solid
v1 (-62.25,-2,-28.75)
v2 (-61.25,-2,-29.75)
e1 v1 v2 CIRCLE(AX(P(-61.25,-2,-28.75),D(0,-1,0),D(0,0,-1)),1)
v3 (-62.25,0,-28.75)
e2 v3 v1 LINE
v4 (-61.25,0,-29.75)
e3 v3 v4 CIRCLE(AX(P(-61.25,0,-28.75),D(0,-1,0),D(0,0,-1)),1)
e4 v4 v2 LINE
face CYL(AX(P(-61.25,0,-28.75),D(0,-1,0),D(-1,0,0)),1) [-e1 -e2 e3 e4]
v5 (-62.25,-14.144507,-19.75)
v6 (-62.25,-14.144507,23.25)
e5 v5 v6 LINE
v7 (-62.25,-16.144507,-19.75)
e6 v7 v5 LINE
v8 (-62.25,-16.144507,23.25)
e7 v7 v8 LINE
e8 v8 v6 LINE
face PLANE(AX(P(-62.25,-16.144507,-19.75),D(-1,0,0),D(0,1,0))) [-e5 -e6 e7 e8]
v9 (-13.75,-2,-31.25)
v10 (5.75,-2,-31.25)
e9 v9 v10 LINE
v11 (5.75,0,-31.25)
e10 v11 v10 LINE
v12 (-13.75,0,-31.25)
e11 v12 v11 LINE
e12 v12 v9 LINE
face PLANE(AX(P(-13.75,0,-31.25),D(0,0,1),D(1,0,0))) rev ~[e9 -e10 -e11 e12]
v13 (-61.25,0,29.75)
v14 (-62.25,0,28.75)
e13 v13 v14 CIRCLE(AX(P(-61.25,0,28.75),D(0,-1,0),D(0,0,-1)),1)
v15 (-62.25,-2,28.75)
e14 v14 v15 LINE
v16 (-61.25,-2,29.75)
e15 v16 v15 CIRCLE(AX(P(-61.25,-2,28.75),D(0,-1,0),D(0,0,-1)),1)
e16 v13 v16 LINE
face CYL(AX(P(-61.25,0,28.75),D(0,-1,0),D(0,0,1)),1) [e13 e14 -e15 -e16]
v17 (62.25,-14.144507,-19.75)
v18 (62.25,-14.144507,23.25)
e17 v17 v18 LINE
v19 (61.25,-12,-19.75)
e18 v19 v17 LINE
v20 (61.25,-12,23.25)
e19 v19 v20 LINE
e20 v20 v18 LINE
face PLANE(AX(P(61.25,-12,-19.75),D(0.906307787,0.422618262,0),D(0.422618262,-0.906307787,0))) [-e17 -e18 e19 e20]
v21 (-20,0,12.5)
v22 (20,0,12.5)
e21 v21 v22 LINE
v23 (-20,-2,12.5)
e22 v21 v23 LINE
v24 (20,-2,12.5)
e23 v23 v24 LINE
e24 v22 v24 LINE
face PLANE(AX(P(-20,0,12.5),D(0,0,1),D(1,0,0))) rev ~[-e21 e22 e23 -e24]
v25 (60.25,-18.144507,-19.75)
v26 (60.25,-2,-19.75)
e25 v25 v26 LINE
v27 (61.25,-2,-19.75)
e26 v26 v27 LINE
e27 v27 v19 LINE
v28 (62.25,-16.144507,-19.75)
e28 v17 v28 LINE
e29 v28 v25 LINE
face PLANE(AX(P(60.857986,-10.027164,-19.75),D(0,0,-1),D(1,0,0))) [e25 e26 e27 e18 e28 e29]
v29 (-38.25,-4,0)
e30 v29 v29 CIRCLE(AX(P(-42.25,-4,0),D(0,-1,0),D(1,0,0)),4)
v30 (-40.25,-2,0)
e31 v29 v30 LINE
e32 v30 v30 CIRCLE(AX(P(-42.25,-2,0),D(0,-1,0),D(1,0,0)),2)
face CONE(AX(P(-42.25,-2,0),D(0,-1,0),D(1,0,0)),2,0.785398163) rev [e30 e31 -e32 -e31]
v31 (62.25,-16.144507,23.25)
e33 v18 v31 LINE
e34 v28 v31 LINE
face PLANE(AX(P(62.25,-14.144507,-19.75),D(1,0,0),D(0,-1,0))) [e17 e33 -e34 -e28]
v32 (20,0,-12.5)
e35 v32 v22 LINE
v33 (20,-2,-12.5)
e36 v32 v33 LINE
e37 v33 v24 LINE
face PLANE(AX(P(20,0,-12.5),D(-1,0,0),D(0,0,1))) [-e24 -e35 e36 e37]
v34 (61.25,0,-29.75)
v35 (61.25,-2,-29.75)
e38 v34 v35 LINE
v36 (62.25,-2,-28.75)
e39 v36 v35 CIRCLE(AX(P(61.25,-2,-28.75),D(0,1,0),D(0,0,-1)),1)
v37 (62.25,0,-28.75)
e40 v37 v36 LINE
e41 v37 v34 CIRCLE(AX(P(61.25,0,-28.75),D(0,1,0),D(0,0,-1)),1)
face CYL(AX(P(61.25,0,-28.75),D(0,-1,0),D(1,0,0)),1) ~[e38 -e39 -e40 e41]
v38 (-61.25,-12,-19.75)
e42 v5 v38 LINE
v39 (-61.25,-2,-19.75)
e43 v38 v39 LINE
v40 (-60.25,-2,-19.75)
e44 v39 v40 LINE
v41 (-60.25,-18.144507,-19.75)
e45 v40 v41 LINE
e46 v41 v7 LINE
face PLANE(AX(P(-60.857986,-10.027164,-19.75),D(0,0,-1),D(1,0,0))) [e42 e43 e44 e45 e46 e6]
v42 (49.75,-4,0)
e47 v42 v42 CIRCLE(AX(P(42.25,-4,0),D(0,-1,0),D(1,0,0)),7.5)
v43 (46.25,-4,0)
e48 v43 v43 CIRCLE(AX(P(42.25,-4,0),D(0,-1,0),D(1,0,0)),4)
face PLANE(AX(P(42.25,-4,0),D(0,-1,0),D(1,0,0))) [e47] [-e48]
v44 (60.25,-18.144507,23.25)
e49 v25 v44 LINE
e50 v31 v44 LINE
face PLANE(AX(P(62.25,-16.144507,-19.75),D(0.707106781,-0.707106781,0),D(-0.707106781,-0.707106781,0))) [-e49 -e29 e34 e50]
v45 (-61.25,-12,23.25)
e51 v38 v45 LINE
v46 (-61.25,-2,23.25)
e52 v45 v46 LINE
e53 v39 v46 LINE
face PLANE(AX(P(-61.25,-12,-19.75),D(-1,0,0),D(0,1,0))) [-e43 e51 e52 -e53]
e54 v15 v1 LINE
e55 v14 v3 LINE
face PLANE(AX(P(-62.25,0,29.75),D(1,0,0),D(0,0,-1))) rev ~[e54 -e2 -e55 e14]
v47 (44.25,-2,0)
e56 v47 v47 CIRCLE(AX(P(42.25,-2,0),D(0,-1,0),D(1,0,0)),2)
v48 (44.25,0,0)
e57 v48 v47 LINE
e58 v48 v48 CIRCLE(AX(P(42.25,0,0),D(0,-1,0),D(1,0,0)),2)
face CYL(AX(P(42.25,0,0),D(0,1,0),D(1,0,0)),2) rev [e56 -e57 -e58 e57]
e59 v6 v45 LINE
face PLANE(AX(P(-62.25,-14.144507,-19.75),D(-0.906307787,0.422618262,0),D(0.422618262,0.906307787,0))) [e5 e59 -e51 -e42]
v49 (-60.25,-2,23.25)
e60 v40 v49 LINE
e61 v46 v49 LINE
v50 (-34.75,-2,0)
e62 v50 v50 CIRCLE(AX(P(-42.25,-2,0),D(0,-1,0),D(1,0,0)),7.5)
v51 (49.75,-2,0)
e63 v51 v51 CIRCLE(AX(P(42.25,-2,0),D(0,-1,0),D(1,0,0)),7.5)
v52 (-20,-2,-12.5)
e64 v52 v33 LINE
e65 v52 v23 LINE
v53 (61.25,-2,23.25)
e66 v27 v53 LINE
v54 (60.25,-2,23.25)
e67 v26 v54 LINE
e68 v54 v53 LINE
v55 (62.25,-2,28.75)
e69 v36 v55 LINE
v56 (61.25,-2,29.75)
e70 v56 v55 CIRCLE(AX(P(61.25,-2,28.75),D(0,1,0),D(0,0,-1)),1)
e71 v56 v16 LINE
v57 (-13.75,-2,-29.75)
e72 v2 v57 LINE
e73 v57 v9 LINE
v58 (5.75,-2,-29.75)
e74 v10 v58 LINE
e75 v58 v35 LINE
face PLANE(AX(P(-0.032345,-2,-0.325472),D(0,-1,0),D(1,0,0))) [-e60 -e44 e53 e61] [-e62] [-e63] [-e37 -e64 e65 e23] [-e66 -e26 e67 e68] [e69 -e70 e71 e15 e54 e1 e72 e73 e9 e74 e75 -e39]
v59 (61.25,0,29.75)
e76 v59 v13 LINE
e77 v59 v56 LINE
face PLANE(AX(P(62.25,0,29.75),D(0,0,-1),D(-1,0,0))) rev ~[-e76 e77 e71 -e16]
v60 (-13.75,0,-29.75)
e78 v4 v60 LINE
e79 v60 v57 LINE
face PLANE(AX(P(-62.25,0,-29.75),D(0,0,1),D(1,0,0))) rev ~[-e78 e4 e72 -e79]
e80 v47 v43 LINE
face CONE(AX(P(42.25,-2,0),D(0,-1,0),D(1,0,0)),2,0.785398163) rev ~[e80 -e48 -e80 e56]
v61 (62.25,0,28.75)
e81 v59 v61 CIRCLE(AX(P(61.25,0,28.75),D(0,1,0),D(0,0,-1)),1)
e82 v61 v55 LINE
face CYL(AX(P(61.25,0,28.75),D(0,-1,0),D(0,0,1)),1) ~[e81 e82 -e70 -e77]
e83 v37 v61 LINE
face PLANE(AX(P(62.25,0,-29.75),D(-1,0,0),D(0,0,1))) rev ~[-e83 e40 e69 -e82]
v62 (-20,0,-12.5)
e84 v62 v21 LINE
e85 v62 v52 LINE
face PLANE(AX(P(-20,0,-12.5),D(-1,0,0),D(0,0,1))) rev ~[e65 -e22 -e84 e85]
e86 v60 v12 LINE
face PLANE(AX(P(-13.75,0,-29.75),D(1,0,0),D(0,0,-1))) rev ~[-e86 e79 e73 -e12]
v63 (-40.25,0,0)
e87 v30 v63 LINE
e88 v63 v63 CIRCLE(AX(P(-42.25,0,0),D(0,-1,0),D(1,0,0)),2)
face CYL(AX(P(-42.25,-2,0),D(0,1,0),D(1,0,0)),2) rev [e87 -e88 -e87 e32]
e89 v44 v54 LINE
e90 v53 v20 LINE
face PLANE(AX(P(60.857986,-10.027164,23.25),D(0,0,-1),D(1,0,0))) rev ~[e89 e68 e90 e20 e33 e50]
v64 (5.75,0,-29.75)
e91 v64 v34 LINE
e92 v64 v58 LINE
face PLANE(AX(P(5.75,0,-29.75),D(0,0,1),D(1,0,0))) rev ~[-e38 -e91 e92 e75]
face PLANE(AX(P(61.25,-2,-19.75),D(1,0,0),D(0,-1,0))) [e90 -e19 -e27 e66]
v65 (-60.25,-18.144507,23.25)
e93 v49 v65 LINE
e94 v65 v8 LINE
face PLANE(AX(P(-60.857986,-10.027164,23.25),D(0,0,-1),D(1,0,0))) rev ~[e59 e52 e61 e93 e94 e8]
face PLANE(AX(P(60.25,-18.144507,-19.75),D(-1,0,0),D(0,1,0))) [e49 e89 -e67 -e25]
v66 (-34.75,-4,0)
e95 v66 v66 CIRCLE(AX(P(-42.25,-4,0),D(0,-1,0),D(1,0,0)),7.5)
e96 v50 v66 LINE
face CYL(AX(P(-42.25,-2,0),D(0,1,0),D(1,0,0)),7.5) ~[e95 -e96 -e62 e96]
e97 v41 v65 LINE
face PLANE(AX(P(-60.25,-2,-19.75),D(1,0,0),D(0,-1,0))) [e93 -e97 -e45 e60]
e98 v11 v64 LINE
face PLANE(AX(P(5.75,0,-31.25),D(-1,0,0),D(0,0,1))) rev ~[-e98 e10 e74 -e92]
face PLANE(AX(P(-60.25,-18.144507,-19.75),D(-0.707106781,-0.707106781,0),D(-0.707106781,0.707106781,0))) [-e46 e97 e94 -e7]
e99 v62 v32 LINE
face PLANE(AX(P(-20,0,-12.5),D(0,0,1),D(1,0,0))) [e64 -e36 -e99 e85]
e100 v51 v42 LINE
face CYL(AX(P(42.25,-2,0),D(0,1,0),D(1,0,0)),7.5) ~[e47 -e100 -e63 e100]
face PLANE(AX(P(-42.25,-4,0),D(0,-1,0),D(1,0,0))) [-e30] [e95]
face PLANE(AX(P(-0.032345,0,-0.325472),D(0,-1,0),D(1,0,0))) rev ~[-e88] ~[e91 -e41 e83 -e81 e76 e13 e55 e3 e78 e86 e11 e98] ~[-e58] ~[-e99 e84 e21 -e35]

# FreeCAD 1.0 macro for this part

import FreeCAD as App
import Part
import Sketcher

V = App.Vector
Q = App.Units.Quantity


def edges_at(feature, points):
    """Names of the edges that pass closest to the given points."""
    edges = feature.Shape.Edges
    near = lambda p: min(range(len(edges)), key=lambda i: edges[i].distToShape(Part.Vertex(*p))[0])
    return sorted({f"Edge{near(p) + 1}" for p in points})

doc = App.newDocument("Part")
body = doc.addObject("PartDesign::Body", "Body")

# Sketch on XZ plane
sketch1 = doc.addObject("Sketcher::SketchObject", "Sketch")
body.addObject(sketch1)
sketch1.AttachmentSupport = (doc.XZ_Plane, [""])
sketch1.MapMode = "FlatFace"
sketch1.addGeometry(Part.LineSegment(V(62.2, 29.8, 0), V(-62.2, 29.8, 0)), False)
sketch1.addGeometry(Part.LineSegment(V(-62.2, 29.8, 0), V(-62.2, -29.8, 0)), False)
sketch1.addGeometry(Part.LineSegment(V(-62.2, -29.8, 0), V(-13.8, -29.8, 0)), False)
sketch1.addGeometry(Part.LineSegment(V(-13.8, -29.8, 0), V(-13.8, -31.2, 0)), False)
sketch1.addGeometry(Part.LineSegment(V(-13.8, -31.2, 0), V(5.8, -31.2, 0)), False)
sketch1.addGeometry(Part.LineSegment(V(5.8, -31.2, 0), V(5.8, -29.8, 0)), False)
sketch1.addGeometry(Part.LineSegment(V(5.8, -29.8, 0), V(62.2, -29.8, 0)), False)
sketch1.addGeometry(Part.LineSegment(V(62.2, -29.8, 0), V(62.2, 29.8, 0)), False)
sketch1.addGeometry(Part.Circle(V(-42.2, 0, 0), V(0, 0, 1), 2), False)
sketch1.addGeometry(Part.LineSegment(V(20, -12.5, 0), V(-20, -12.5, 0)), False)
sketch1.addGeometry(Part.LineSegment(V(-20, -12.5, 0), V(-20, 12.5, 0)), False)
sketch1.addGeometry(Part.LineSegment(V(-20, 12.5, 0), V(20, 12.5, 0)), False)
sketch1.addGeometry(Part.LineSegment(V(20, 12.5, 0), V(20, -12.5, 0)), False)
sketch1.addGeometry(Part.Circle(V(42.2, 0, 0), V(0, 0, 1), 2), False)
sketch1.addConstraint(Sketcher.Constraint("Coincident", 0, 2, 1, 1))
sketch1.addConstraint(Sketcher.Constraint("Coincident", 1, 2, 2, 1))
sketch1.addConstraint(Sketcher.Constraint("Coincident", 2, 2, 3, 1))
sketch1.addConstraint(Sketcher.Constraint("Coincident", 3, 2, 4, 1))
sketch1.addConstraint(Sketcher.Constraint("Coincident", 4, 2, 5, 1))
sketch1.addConstraint(Sketcher.Constraint("Coincident", 5, 2, 6, 1))
sketch1.addConstraint(Sketcher.Constraint("Coincident", 6, 2, 7, 1))
sketch1.addConstraint(Sketcher.Constraint("Coincident", 7, 2, 0, 1))
sketch1.addConstraint(Sketcher.Constraint("Coincident", 9, 2, 10, 1))
sketch1.addConstraint(Sketcher.Constraint("Coincident", 10, 2, 11, 1))
sketch1.addConstraint(Sketcher.Constraint("Coincident", 11, 2, 12, 1))
sketch1.addConstraint(Sketcher.Constraint("Coincident", 12, 2, 9, 1))
sketch1.addConstraint(Sketcher.Constraint("Horizontal", 0))
sketch1.addConstraint(Sketcher.Constraint("Vertical", 1))
sketch1.addConstraint(Sketcher.Constraint("Horizontal", 2))
sketch1.addConstraint(Sketcher.Constraint("Vertical", 3))
sketch1.addConstraint(Sketcher.Constraint("Horizontal", 4))
sketch1.addConstraint(Sketcher.Constraint("Vertical", 5))
sketch1.addConstraint(Sketcher.Constraint("Horizontal", 6))
sketch1.addConstraint(Sketcher.Constraint("Vertical", 7))
sketch1.addConstraint(Sketcher.Constraint("Horizontal", 9))
sketch1.addConstraint(Sketcher.Constraint("Vertical", 10))
sketch1.addConstraint(Sketcher.Constraint("Horizontal", 11))
sketch1.addConstraint(Sketcher.Constraint("Vertical", 12))
sketch1.addConstraint(Sketcher.Constraint("Equal", 8, 13))
sketch1.addConstraint(Sketcher.Constraint("Symmetric", 8, 3, 13, 3, -1, 1))
sketch1.addConstraint(Sketcher.Constraint("Symmetric", 0, 2, 6, 2, -1, 1))
sketch1.addConstraint(Sketcher.Constraint("Symmetric", 9, 2, 11, 2, -1, 1))
sketch1.addConstraint(Sketcher.Constraint("PointOnObject", 8, 3, -1))
sketch1.addConstraint(Sketcher.Constraint("Horizontal", 2, 2, 5, 2))
sketch1.addConstraint(Sketcher.Constraint("Diameter", 8, Q("4 mm")))
sketch1.addConstraint(Sketcher.Constraint("DistanceX", 9, 2, 9, 1, Q("40 mm")))
sketch1.addConstraint(Sketcher.Constraint("DistanceY", 10, 1, 10, 2, Q("25 mm")))
sketch1.addConstraint(Sketcher.Constraint("DistanceX", 0, 2, 0, 1, Q("124.5 mm")))
sketch1.addConstraint(Sketcher.Constraint("DistanceX", 2, 1, 2, 2, Q("48.5 mm")))
sketch1.addConstraint(Sketcher.Constraint("DistanceX", 4, 1, 4, 2, Q("19.5 mm")))
sketch1.addConstraint(Sketcher.Constraint("DistanceY", 1, 2, 1, 1, Q("59.5 mm")))
sketch1.addConstraint(Sketcher.Constraint("DistanceY", 3, 2, 3, 1, Q("1.5 mm")))
sketch1.addConstraint(Sketcher.Constraint("DistanceX", 0, 2, 8, 3, Q("20 mm")))
pad1 = doc.addObject("PartDesign::Pad", "Pad")
body.addObject(pad1)
pad1.Profile = sketch1
pad1.Length = 2

# Sketch on XY plane
sketch2 = doc.addObject("Sketcher::SketchObject", "Sketch001")
body.addObject(sketch2)
sketch2.AttachmentSupport = (doc.XY_Plane, [""])
sketch2.MapMode = "FlatFace"
sketch2.AttachmentOffset = App.Placement(V(0, 0, -19.75), App.Rotation())
sketch2.addGeometry(Part.LineSegment(V(-61.2, -12, 0), V(-61.2, -2, 0)), False)
sketch2.addGeometry(Part.LineSegment(V(-61.2, -2, 0), V(-60.2, -2, 0)), False)
sketch2.addGeometry(Part.LineSegment(V(-60.2, -2, 0), V(-60.2, -18.1, 0)), False)
sketch2.addGeometry(Part.LineSegment(V(-60.2, -18.1, 0), V(-62.2, -16.1, 0)), False)
sketch2.addGeometry(Part.LineSegment(V(-62.2, -16.1, 0), V(-62.2, -14.1, 0)), False)
sketch2.addGeometry(Part.LineSegment(V(-62.2, -14.1, 0), V(-61.2, -12, 0)), False)
sketch2.addGeometry(Part.LineSegment(V(61.2, -2, 0), V(61.2, -12, 0)), False)
sketch2.addGeometry(Part.LineSegment(V(61.2, -12, 0), V(62.2, -14.1, 0)), False)
sketch2.addGeometry(Part.LineSegment(V(62.2, -14.1, 0), V(62.2, -16.1, 0)), False)
sketch2.addGeometry(Part.LineSegment(V(62.2, -16.1, 0), V(60.2, -18.1, 0)), False)
sketch2.addGeometry(Part.LineSegment(V(60.2, -18.1, 0), V(60.2, -2, 0)), False)
sketch2.addGeometry(Part.LineSegment(V(60.2, -2, 0), V(61.2, -2, 0)), False)
sketch2.addConstraint(Sketcher.Constraint("Coincident", 0, 2, 1, 1))
sketch2.addConstraint(Sketcher.Constraint("Coincident", 1, 2, 2, 1))
sketch2.addConstraint(Sketcher.Constraint("Coincident", 2, 2, 3, 1))
sketch2.addConstraint(Sketcher.Constraint("Coincident", 3, 2, 4, 1))
sketch2.addConstraint(Sketcher.Constraint("Coincident", 4, 2, 5, 1))
sketch2.addConstraint(Sketcher.Constraint("Coincident", 5, 2, 0, 1))
sketch2.addConstraint(Sketcher.Constraint("Coincident", 6, 2, 7, 1))
sketch2.addConstraint(Sketcher.Constraint("Coincident", 7, 2, 8, 1))
sketch2.addConstraint(Sketcher.Constraint("Coincident", 8, 2, 9, 1))
sketch2.addConstraint(Sketcher.Constraint("Coincident", 9, 2, 10, 1))
sketch2.addConstraint(Sketcher.Constraint("Coincident", 10, 2, 11, 1))
sketch2.addConstraint(Sketcher.Constraint("Coincident", 11, 2, 6, 1))
sketch2.addConstraint(Sketcher.Constraint("Vertical", 0))
sketch2.addConstraint(Sketcher.Constraint("Horizontal", 1))
sketch2.addConstraint(Sketcher.Constraint("Vertical", 2))
sketch2.addConstraint(Sketcher.Constraint("Vertical", 4))
sketch2.addConstraint(Sketcher.Constraint("Vertical", 6))
sketch2.addConstraint(Sketcher.Constraint("Vertical", 8))
sketch2.addConstraint(Sketcher.Constraint("Vertical", 10))
sketch2.addConstraint(Sketcher.Constraint("Horizontal", 11))
sketch2.addConstraint(Sketcher.Constraint("Symmetric", 5, 2, 6, 2, -2))
sketch2.addConstraint(Sketcher.Constraint("Symmetric", 4, 2, 7, 2, -2))
sketch2.addConstraint(Sketcher.Constraint("Symmetric", 2, 2, 9, 2, -2))
sketch2.addConstraint(Sketcher.Constraint("Perpendicular", 3, 9))
sketch2.addConstraint(Sketcher.Constraint("Horizontal", 3, 2, 8, 2))
sketch2.addConstraint(Sketcher.Constraint("Horizontal", 1, 2, 10, 2))
sketch2.addConstraint(Sketcher.Constraint("DistanceX", 1, 1, 1, 2, Q("1 mm")))
sketch2.addConstraint(Sketcher.Constraint("DistanceY", 0, 1, 0, 2, Q("10 mm")))
sketch2.addConstraint(Sketcher.Constraint("DistanceY", 4, 1, 4, 2, Q("2 mm")))
sketch2.addConstraint(Sketcher.Constraint("Angle", 5, Q("65 deg")))
sketch2.addConstraint(Sketcher.Constraint("DistanceY", 0, 2, -1, 1, Q("2 mm")))
sketch2.addConstraint(Sketcher.Constraint("DistanceX", 3, 2, 2, 2, Q("2 mm")))
sketch2.addConstraint(Sketcher.Constraint("DistanceX", 2, 2, 6, 2, Q("121.5 mm")))
pad2 = doc.addObject("PartDesign::Pad", "Pad001")
body.addObject(pad2)
pad2.Profile = sketch2
pad2.Length = 43
doc.recompute()

fillet = doc.addObject("PartDesign::Fillet", "Fillet")
body.addObject(fillet)
fillet.Base = (pad2, edges_at(pad2, [
    (-62.25, -1, -29.75),
    (62.25, -1, -29.75),
    (62.25, -1, 29.75),
    (-62.25, -1, 29.75),
]))
fillet.Radius = 1

# Sketch on XZ plane
sketch3 = doc.addObject("Sketcher::SketchObject", "Sketch002")
body.addObject(sketch3)
sketch3.AttachmentSupport = (doc.XZ_Plane, [""])
sketch3.MapMode = "FlatFace"
sketch3.AttachmentOffset = App.Placement(V(0, 0, 2), App.Rotation())
sketch3.addGeometry(Part.Circle(V(-42.2, 0, 0), V(0, 0, 1), 7.5), False)
sketch3.addGeometry(Part.Circle(V(-42.2, 0, 0), V(0, 0, 1), 2), False)
sketch3.addGeometry(Part.Circle(V(42.2, 0, 0), V(0, 0, 1), 7.5), False)
sketch3.addGeometry(Part.Circle(V(42.2, 0, 0), V(0, 0, 1), 2), False)
sketch3.addConstraint(Sketcher.Constraint("Coincident", 1, 3, 0, 3))
sketch3.addConstraint(Sketcher.Constraint("Coincident", 3, 3, 2, 3))
sketch3.addConstraint(Sketcher.Constraint("Equal", 0, 2))
sketch3.addConstraint(Sketcher.Constraint("Equal", 1, 3))
sketch3.addConstraint(Sketcher.Constraint("Symmetric", 0, 3, 2, 3, -1, 1))
sketch3.addConstraint(Sketcher.Constraint("PointOnObject", 0, 3, -1))
sketch3.addConstraint(Sketcher.Constraint("Diameter", 0, Q("15 mm")))
sketch3.addConstraint(Sketcher.Constraint("Diameter", 1, Q("4 mm")))
sketch3.addConstraint(Sketcher.Constraint("DistanceX", 0, 3, 2, 3, Q("84.5 mm")))
pad3 = doc.addObject("PartDesign::Pad", "Pad002")
body.addObject(pad3)
pad3.Profile = sketch3
pad3.Length = 2
doc.recompute()

chamfer = doc.addObject("PartDesign::Chamfer", "Chamfer")
body.addObject(chamfer)
chamfer.Base = (pad3, edges_at(pad3, [(-44.25, -4, 0), (40.25, -4, 0)]))
chamfer.Size = 2

doc.recompute()
